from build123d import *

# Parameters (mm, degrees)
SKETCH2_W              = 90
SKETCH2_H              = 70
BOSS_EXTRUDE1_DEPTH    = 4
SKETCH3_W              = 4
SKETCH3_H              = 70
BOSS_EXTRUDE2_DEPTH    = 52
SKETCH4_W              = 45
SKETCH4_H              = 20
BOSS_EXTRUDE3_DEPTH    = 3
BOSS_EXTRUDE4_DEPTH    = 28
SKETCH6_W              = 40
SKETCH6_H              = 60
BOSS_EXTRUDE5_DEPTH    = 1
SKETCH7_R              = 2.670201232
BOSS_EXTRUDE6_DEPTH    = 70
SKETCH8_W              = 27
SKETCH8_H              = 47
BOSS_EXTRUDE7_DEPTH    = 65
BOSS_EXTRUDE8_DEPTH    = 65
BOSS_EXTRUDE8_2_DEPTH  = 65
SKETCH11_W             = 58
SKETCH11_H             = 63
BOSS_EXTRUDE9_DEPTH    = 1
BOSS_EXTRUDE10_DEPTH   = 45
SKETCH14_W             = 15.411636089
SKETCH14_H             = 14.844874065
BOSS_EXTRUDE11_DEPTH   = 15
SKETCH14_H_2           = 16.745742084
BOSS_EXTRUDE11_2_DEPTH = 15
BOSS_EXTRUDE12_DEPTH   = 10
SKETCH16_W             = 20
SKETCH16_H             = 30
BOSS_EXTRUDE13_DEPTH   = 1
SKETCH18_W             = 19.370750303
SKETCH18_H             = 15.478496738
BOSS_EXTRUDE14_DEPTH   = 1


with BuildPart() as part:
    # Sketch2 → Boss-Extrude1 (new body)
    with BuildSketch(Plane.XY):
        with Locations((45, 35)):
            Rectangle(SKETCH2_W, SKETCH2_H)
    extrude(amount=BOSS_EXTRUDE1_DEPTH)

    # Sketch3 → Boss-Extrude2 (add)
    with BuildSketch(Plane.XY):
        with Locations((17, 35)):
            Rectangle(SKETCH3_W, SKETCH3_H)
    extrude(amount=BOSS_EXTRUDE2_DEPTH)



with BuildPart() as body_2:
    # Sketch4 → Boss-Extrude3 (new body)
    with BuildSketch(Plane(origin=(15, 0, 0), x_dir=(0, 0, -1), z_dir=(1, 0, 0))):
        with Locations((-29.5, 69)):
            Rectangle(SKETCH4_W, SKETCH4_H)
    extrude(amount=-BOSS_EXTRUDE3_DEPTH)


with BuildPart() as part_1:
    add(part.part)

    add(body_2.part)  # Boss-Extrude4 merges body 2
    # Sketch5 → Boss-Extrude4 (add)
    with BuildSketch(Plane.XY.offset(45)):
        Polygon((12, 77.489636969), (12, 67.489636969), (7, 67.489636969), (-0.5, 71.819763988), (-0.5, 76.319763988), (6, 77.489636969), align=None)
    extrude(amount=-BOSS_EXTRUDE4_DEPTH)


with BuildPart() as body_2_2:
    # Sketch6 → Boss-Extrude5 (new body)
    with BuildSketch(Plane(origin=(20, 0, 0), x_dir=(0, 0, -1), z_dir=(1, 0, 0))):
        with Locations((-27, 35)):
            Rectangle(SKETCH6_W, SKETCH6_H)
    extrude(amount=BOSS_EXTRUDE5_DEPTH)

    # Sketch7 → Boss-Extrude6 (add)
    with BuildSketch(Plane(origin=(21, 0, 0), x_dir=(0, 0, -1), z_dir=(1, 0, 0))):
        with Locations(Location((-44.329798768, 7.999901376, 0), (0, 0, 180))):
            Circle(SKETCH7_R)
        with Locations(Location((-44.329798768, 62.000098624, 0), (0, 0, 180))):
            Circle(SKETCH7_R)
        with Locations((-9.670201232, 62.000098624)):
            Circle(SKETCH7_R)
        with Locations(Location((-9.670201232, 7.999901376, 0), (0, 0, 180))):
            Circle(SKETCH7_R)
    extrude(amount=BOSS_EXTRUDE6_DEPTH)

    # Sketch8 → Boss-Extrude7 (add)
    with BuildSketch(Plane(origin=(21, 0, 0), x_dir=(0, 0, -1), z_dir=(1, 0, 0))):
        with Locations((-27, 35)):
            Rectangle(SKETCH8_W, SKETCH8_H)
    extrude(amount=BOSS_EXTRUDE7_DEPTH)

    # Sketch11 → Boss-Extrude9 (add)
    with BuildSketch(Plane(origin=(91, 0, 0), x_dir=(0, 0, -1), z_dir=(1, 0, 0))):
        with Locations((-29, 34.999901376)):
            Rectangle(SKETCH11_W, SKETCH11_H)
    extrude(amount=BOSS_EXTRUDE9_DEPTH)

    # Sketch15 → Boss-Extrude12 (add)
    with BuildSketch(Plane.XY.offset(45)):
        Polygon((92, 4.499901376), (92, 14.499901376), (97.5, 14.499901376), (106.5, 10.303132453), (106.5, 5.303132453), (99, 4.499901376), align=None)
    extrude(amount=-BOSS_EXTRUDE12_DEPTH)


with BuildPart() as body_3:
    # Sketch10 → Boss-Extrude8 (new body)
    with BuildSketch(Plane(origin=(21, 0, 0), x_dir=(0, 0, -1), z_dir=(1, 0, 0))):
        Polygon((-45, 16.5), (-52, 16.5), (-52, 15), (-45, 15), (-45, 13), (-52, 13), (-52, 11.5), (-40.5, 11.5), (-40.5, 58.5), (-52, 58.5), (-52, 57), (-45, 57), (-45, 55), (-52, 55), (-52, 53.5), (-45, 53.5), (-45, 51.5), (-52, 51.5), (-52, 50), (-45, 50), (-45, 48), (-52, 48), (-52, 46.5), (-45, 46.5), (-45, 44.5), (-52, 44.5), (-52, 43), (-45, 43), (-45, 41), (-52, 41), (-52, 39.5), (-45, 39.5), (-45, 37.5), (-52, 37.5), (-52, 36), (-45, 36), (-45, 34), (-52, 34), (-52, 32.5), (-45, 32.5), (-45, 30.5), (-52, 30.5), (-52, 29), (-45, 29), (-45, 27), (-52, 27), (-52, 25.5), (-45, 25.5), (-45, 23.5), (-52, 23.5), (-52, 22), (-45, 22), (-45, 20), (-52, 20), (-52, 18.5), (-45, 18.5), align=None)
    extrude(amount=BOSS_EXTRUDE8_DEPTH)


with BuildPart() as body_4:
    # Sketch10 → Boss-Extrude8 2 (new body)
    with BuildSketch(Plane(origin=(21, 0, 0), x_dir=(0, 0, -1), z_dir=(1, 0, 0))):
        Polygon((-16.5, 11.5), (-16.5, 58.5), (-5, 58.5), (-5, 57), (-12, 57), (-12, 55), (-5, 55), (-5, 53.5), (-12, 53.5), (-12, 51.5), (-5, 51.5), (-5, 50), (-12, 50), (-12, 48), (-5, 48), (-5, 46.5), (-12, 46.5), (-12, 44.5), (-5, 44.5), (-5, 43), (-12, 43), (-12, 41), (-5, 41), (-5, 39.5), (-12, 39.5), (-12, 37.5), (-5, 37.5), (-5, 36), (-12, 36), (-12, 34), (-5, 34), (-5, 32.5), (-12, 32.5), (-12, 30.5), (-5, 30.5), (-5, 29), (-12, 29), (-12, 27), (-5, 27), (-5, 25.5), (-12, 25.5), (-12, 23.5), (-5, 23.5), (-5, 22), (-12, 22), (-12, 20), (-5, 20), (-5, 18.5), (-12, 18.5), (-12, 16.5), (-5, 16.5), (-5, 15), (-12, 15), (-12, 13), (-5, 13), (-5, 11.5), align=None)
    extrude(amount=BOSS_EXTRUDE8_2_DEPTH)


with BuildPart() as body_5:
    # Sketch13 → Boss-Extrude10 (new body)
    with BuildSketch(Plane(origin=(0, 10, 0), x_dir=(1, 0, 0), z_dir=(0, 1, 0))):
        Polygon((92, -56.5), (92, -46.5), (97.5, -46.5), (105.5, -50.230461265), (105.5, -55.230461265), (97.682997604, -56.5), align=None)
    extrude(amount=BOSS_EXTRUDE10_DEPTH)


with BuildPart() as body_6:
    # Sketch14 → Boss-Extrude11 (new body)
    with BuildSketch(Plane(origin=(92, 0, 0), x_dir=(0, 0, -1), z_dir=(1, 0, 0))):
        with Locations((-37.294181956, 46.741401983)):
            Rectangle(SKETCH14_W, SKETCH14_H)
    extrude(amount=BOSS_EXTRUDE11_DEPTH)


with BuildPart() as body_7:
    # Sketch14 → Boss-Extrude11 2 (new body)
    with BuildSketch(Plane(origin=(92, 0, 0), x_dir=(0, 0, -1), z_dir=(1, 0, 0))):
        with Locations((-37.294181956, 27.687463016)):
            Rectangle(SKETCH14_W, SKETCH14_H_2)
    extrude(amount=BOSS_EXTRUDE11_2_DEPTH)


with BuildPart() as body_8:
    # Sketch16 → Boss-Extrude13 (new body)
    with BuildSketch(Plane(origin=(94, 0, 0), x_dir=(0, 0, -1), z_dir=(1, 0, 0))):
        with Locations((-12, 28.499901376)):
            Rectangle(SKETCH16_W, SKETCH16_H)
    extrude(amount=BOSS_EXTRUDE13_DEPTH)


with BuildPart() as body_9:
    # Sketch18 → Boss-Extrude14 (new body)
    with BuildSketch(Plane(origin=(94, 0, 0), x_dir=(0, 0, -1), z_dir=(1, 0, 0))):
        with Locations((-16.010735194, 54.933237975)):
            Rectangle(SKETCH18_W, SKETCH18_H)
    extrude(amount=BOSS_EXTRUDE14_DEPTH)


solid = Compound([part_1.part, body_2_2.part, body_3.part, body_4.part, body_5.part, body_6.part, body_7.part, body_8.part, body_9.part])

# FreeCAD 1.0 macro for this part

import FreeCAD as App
import Part
import Sketcher
Q = App.Units.Quantity


def add_polygon(sketch, points):
    """Adds a closed chain of lines whose ends are joined by coincident constraints."""
    first, n = sketch.GeometryCount, len(points)
    for a, b in zip(points, points[1:] + points[:1]):
        sketch.addGeometry(Part.LineSegment(App.Vector(*a, 0), App.Vector(*b, 0)), False)
    for i in range(n):
        sketch.addConstraint(Sketcher.Constraint("Coincident", first + i, 2, first + (i + 1) % n, 1))

doc = App.newDocument("Part")
body = doc.addObject("PartDesign::Body", "Body")

sketch1 = body.newObject("Sketcher::SketchObject", "Sketch")
sketch1.AttachmentSupport = (doc.getObject("XY_Plane"), [""])
sketch1.MapMode = "FlatFace"
add_polygon(sketch1, [(0, 70), (0, 0), (90, 0), (90, 70)])
sketch1.addConstraint(Sketcher.Constraint("Vertical", 0))
sketch1.addConstraint(Sketcher.Constraint("Horizontal", 1))
sketch1.addConstraint(Sketcher.Constraint("Vertical", 2))
sketch1.addConstraint(Sketcher.Constraint("Horizontal", 3))
sketch1.addConstraint(Sketcher.Constraint("Coincident", 0, 2, -1, 1))
sketch1.addConstraint(Sketcher.Constraint("DistanceX", 1, 1, 1, 2, 90.0))
sketch1.addConstraint(Sketcher.Constraint("DistanceY", 0, 2, 0, 1, 70.0))
pad1 = body.newObject("PartDesign::Pad", "Pad")
pad1.Profile = sketch1
pad1.Length = 4

sketch2 = body.newObject("Sketcher::SketchObject", "Sketch001")
sketch2.AttachmentSupport = (doc.getObject("XY_Plane"), [""])
sketch2.MapMode = "FlatFace"
add_polygon(sketch2, [(15, 70), (15, 0), (19, 0), (19, 70)])
sketch2.addConstraint(Sketcher.Constraint("Vertical", 0))
sketch2.addConstraint(Sketcher.Constraint("Horizontal", 1))
sketch2.addConstraint(Sketcher.Constraint("Vertical", 2))
sketch2.addConstraint(Sketcher.Constraint("Horizontal", 3))
sketch2.addConstraint(Sketcher.Constraint("PointOnObject", 0, 2, -1))
sketch2.addConstraint(Sketcher.Constraint("DistanceX", 1, 1, 1, 2, 4.0))
sketch2.addConstraint(Sketcher.Constraint("DistanceY", 0, 2, 0, 1, 70.0))
sketch2.addConstraint(Sketcher.Constraint("DistanceX", -1, 1, 0, 2, 15.0))
pad2 = body.newObject("PartDesign::Pad", "Pad001")
pad2.Profile = sketch2
pad2.Length = 52
body2 = doc.addObject("PartDesign::Body", "Body001")

sketch3 = body2.newObject("Sketcher::SketchObject", "Sketch002")
sketch3.AttachmentSupport = (doc.getObject("YZ_Plane001"), [""])
sketch3.MapMode = "FlatFace"
sketch3.AttachmentOffset = App.Placement(App.Vector(0, 0, 15), App.Rotation())
add_polygon(sketch3, [(79, 52), (59, 52), (59, 7), (79, 7)])
sketch3.addConstraint(Sketcher.Constraint("Horizontal", 0))
sketch3.addConstraint(Sketcher.Constraint("Vertical", 1))
sketch3.addConstraint(Sketcher.Constraint("Horizontal", 2))
sketch3.addConstraint(Sketcher.Constraint("Vertical", 3))
sketch3.addConstraint(Sketcher.Constraint("DistanceX", 0, 2, 0, 1, 20.0))
sketch3.addConstraint(Sketcher.Constraint("DistanceY", 1, 2, 1, 1, 45.0))
sketch3.addConstraint(Sketcher.Constraint("DistanceX", -1, 1, 0, 2, 59.0))
sketch3.addConstraint(Sketcher.Constraint("DistanceY", -1, 1, 0, 2, 52.0))
pad3 = body2.newObject("PartDesign::Pad", "Pad002")
pad3.Profile = sketch3
pad3.Length = 3
pad3.Reversed = True
doc.recompute()

boolean = body.newObject("PartDesign::Boolean", "Boolean")
boolean.Type = "Fuse"
boolean.addObjects([body2])

sketch4 = body.newObject("Sketcher::SketchObject", "Sketch003")
sketch4.AttachmentSupport = (doc.getObject("XY_Plane"), [""])
sketch4.MapMode = "FlatFace"
sketch4.AttachmentOffset = App.Placement(App.Vector(0, 0, 45), App.Rotation())
add_polygon(sketch4, [(12, 67.5), (12, 77.5), (6, 77.5), (-0.5, 76.3), (-0.5, 71.8), (7, 67.5)])
sketch4.addConstraint(Sketcher.Constraint("Vertical", 0))
sketch4.addConstraint(Sketcher.Constraint("Horizontal", 1))
sketch4.addConstraint(Sketcher.Constraint("Vertical", 3))
sketch4.addConstraint(Sketcher.Constraint("Horizontal", 5))
sketch4.addConstraint(Sketcher.Constraint("DistanceX", 1, 2, 1, 1, 6.0))
sketch4.addConstraint(Sketcher.Constraint("DistanceX", 5, 1, 5, 2, 5.0))
sketch4.addConstraint(Sketcher.Constraint("DistanceY", 0, 1, 0, 2, 10.0))
sketch4.addConstraint(Sketcher.Constraint("Angle", 4, Q("-30 deg")))
sketch4.addConstraint(Sketcher.Constraint("DistanceY", 3, 2, 3, 1, 4.5))
sketch4.addConstraint(Sketcher.Constraint("DistanceX", -1, 1, 0, 2, 12.0))
sketch4.addConstraint(Sketcher.Constraint("DistanceX", 2, 2, -1, 1, 0.5))
sketch4.addConstraint(Sketcher.Constraint("DistanceY", -1, 1, 0, 2, 77.489637))
pad4 = body.newObject("PartDesign::Pad", "Pad003")
pad4.Profile = sketch4
pad4.Length = 28
pad4.Reversed = True
body3 = doc.addObject("PartDesign::Body", "Body002")

sketch5 = body3.newObject("Sketcher::SketchObject", "Sketch004")
sketch5.AttachmentSupport = (doc.getObject("YZ_Plane002"), [""])
sketch5.MapMode = "FlatFace"
sketch5.AttachmentOffset = App.Placement(App.Vector(0, 0, 20), App.Rotation())
add_polygon(sketch5, [(65, 47), (5, 47), (5, 7), (65, 7)])
sketch5.addConstraint(Sketcher.Constraint("Horizontal", 0))
sketch5.addConstraint(Sketcher.Constraint("Vertical", 1))
sketch5.addConstraint(Sketcher.Constraint("Horizontal", 2))
sketch5.addConstraint(Sketcher.Constraint("Vertical", 3))
sketch5.addConstraint(Sketcher.Constraint("DistanceX", 0, 2, 0, 1, 60.0))
sketch5.addConstraint(Sketcher.Constraint("DistanceY", 1, 2, 1, 1, 40.0))
sketch5.addConstraint(Sketcher.Constraint("DistanceX", -1, 1, 0, 2, 5.0))
sketch5.addConstraint(Sketcher.Constraint("DistanceY", -1, 1, 0, 2, 47.0))
pad5 = body3.newObject("PartDesign::Pad", "Pad004")
pad5.Profile = sketch5
pad5.Length = 1

sketch6 = body3.newObject("Sketcher::SketchObject", "Sketch005")
sketch6.AttachmentSupport = (doc.getObject("YZ_Plane002"), [""])
sketch6.MapMode = "FlatFace"
sketch6.AttachmentOffset = App.Placement(App.Vector(0, 0, 21), App.Rotation())
sketch6.addGeometry(Part.Circle(App.Vector(8, 44.3, 0), App.Vector(0, 0, 1), 2.7), False)
sketch6.addGeometry(Part.Circle(App.Vector(62, 44.3, 0), App.Vector(0, 0, 1), 2.7), False)
sketch6.addGeometry(Part.Circle(App.Vector(62, 9.7, 0), App.Vector(0, 0, 1), 2.7), False)
sketch6.addGeometry(Part.Circle(App.Vector(8, 9.7, 0), App.Vector(0, 0, 1), 2.7), False)
sketch6.addConstraint(Sketcher.Constraint("Equal", 0, 1))
sketch6.addConstraint(Sketcher.Constraint("Equal", 1, 2))
sketch6.addConstraint(Sketcher.Constraint("Equal", 2, 3))
sketch6.addConstraint(Sketcher.Constraint("Horizontal", 0, 3, 1, 3))
sketch6.addConstraint(Sketcher.Constraint("Horizontal", 2, 3, 3, 3))
sketch6.addConstraint(Sketcher.Constraint("Vertical", 1, 3, 2, 3))
sketch6.addConstraint(Sketcher.Constraint("Vertical", 0, 3, 3, 3))
sketch6.addConstraint(Sketcher.Constraint("Diameter", 0, 5.340402))
sketch6.addConstraint(Sketcher.Constraint("DistanceX", -1, 1, 0, 3, 7.999901))
sketch6.addConstraint(Sketcher.Constraint("DistanceY", -1, 1, 0, 3, 44.329799))
sketch6.addConstraint(Sketcher.Constraint("DistanceX", -1, 1, 1, 3, 62.000099))
sketch6.addConstraint(Sketcher.Constraint("DistanceY", -1, 1, 2, 3, 9.670201))
pad6 = body3.newObject("PartDesign::Pad", "Pad005")
pad6.Profile = sketch6
pad6.Length = 70

sketch7 = body3.newObject("Sketcher::SketchObject", "Sketch006")
sketch7.AttachmentSupport = (doc.getObject("YZ_Plane002"), [""])
sketch7.MapMode = "FlatFace"
sketch7.AttachmentOffset = App.Placement(App.Vector(0, 0, 21), App.Rotation())
add_polygon(sketch7, [(58, 40), (12, 40), (12, 14), (58, 14)])
sketch7.addConstraint(Sketcher.Constraint("Horizontal", 0))
sketch7.addConstraint(Sketcher.Constraint("Vertical", 1))
sketch7.addConstraint(Sketcher.Constraint("Horizontal", 2))
sketch7.addConstraint(Sketcher.Constraint("Vertical", 3))
sketch7.addConstraint(Sketcher.Constraint("DistanceX", 0, 2, 0, 1, 47.0))
sketch7.addConstraint(Sketcher.Constraint("DistanceY", 1, 2, 1, 1, 27.0))
sketch7.addConstraint(Sketcher.Constraint("DistanceX", -1, 1, 0, 2, 11.5))
sketch7.addConstraint(Sketcher.Constraint("DistanceY", -1, 1, 0, 2, 40.5))
pad7 = body3.newObject("PartDesign::Pad", "Pad006")
pad7.Profile = sketch7
pad7.Length = 65

sketch8 = body3.newObject("Sketcher::SketchObject", "Sketch007")
sketch8.AttachmentSupport = (doc.getObject("YZ_Plane002"), [""])
sketch8.MapMode = "FlatFace"
sketch8.AttachmentOffset = App.Placement(App.Vector(0, 0, 91), App.Rotation())
add_polygon(sketch8, [(66, 58), (3, 58), (3, 0), (66, 0)])
sketch8.addConstraint(Sketcher.Constraint("Horizontal", 0))
sketch8.addConstraint(Sketcher.Constraint("Vertical", 1))
sketch8.addConstraint(Sketcher.Constraint("Horizontal", 2))
sketch8.addConstraint(Sketcher.Constraint("Vertical", 3))
sketch8.addConstraint(Sketcher.Constraint("PointOnObject", 1, 2, -1))
sketch8.addConstraint(Sketcher.Constraint("DistanceX", 0, 2, 0, 1, 63.0))
sketch8.addConstraint(Sketcher.Constraint("DistanceY", 1, 2, 1, 1, 58.0))
sketch8.addConstraint(Sketcher.Constraint("DistanceX", -1, 1, 0, 2, 3.499901))
pad8 = body3.newObject("PartDesign::Pad", "Pad007")
pad8.Profile = sketch8
pad8.Length = 1

sketch9 = body3.newObject("Sketcher::SketchObject", "Sketch008")
sketch9.AttachmentSupport = (doc.getObject("XY_Plane002"), [""])
sketch9.MapMode = "FlatFace"
sketch9.AttachmentOffset = App.Placement(App.Vector(0, 0, 45), App.Rotation())
add_polygon(sketch9, [(92, 14), (92, 4), (99, 4), (106, 5), (106, 10), (98, 14)])
sketch9.addConstraint(Sketcher.Constraint("Vertical", 0))
sketch9.addConstraint(Sketcher.Constraint("Horizontal", 1))
sketch9.addConstraint(Sketcher.Constraint("Vertical", 3))
sketch9.addConstraint(Sketcher.Constraint("Horizontal", 5))
sketch9.addConstraint(Sketcher.Constraint("DistanceX", 1, 1, 1, 2, 7.0))
sketch9.addConstraint(Sketcher.Constraint("DistanceY", 0, 2, 0, 1, 10.0))
sketch9.addConstraint(Sketcher.Constraint("DistanceY", 3, 1, 3, 2, 5.0))
sketch9.addConstraint(Sketcher.Constraint("Angle", 4, Q("155 deg")))
sketch9.addConstraint(Sketcher.Constraint("DistanceX", 5, 2, 5, 1, 5.5))
sketch9.addConstraint(Sketcher.Constraint("DistanceX", -1, 1, 0, 2, 92.0))
sketch9.addConstraint(Sketcher.Constraint("DistanceX", 4, 2, 3, 2, 9.0))
sketch9.addConstraint(Sketcher.Constraint("DistanceY", -1, 1, 0, 2, 4.499901))
pad9 = body3.newObject("PartDesign::Pad", "Pad008")
pad9.Profile = sketch9
pad9.Length = 10
pad9.Reversed = True
body4 = doc.addObject("PartDesign::Body", "Body003")

sketch10 = body4.newObject("Sketcher::SketchObject", "Sketch009")
sketch10.AttachmentSupport = (doc.getObject("YZ_Plane003"), [""])
sketch10.MapMode = "FlatFace"
sketch10.AttachmentOffset = App.Placement(App.Vector(0, 0, 21), App.Rotation())
add_polygon(sketch10, [(16.5, 45), (16.5, 52), (15, 52), (15, 45), (13, 45), (13, 52), (11.5, 52), (11.5, 40.5), (58.5, 40.5), (58.5, 52), (57, 52), (57, 45), (55, 45), (55, 52), (53.5, 52), (53.5, 45), (51.5, 45), (51.5, 52), (50, 52), (50, 45), (48, 45), (48, 52), (46.5, 52), (46.5, 45), (44.5, 45), (44.5, 52), (43, 52), (43, 45), (41, 45), (41, 52), (39.5, 52), (39.5, 45), (37.5, 45), (37.5, 52), (36, 52), (36, 45), (34, 45), (34, 52), (32.5, 52), (32.5, 45), (30.5, 45), (30.5, 52), (29, 52), (29, 45), (27, 45), (27, 52), (25.5, 52), (25.5, 45), (23.5, 45), (23.5, 52), (22, 52), (22, 45), (20, 45), (20, 52), (18.5, 52), (18.5, 45)])
sketch10.addConstraint(Sketcher.Constraint("Vertical", 0))
sketch10.addConstraint(Sketcher.Constraint("Horizontal", 1))
sketch10.addConstraint(Sketcher.Constraint("Vertical", 2))
sketch10.addConstraint(Sketcher.Constraint("Horizontal", 3))
sketch10.addConstraint(Sketcher.Constraint("Vertical", 4))
sketch10.addConstraint(Sketcher.Constraint("Horizontal", 5))
sketch10.addConstraint(Sketcher.Constraint("Vertical", 6))
sketch10.addConstraint(Sketcher.Constraint("Horizontal", 7))
sketch10.addConstraint(Sketcher.Constraint("Vertical", 8))
sketch10.addConstraint(Sketcher.Constraint("Horizontal", 9))
sketch10.addConstraint(Sketcher.Constraint("Vertical", 10))
sketch10.addConstraint(Sketcher.Constraint("Horizontal", 11))
sketch10.addConstraint(Sketcher.Constraint("Vertical", 12))
sketch10.addConstraint(Sketcher.Constraint("Horizontal", 13))
sketch10.addConstraint(Sketcher.Constraint("Vertical", 14))
sketch10.addConstraint(Sketcher.Constraint("Horizontal", 15))
sketch10.addConstraint(Sketcher.Constraint("Vertical", 16))
sketch10.addConstraint(Sketcher.Constraint("Horizontal", 17))
sketch10.addConstraint(Sketcher.Constraint("Vertical", 18))
sketch10.addConstraint(Sketcher.Constraint("Horizontal", 19))
sketch10.addConstraint(Sketcher.Constraint("Vertical", 20))
sketch10.addConstraint(Sketcher.Constraint("Horizontal", 21))
sketch10.addConstraint(Sketcher.Constraint("Vertical", 22))
sketch10.addConstraint(Sketcher.Constraint("Horizontal", 23))
sketch10.addConstraint(Sketcher.Constraint("Vertical", 24))
sketch10.addConstraint(Sketcher.Constraint("Horizontal", 25))
sketch10.addConstraint(Sketcher.Constraint("Vertical", 26))
sketch10.addConstraint(Sketcher.Constraint("Horizontal", 27))
sketch10.addConstraint(Sketcher.Constraint("Vertical", 28))
sketch10.addConstraint(Sketcher.Constraint("Horizontal", 29))
sketch10.addConstraint(Sketcher.Constraint("Vertical", 30))
sketch10.addConstraint(Sketcher.Constraint("Horizontal", 31))
sketch10.addConstraint(Sketcher.Constraint("Vertical", 32))
sketch10.addConstraint(Sketcher.Constraint("Horizontal", 33))
sketch10.addConstraint(Sketcher.Constraint("Vertical", 34))
sketch10.addConstraint(Sketcher.Constraint("Horizontal", 35))
sketch10.addConstraint(Sketcher.Constraint("Vertical", 36))
sketch10.addConstraint(Sketcher.Constraint("Horizontal", 37))
sketch10.addConstraint(Sketcher.Constraint("Vertical", 38))
sketch10.addConstraint(Sketcher.Constraint("Horizontal", 39))
sketch10.addConstraint(Sketcher.Constraint("Vertical", 40))
sketch10.addConstraint(Sketcher.Constraint("Horizontal", 41))
sketch10.addConstraint(Sketcher.Constraint("Vertical", 42))
sketch10.addConstraint(Sketcher.Constraint("Horizontal", 43))
sketch10.addConstraint(Sketcher.Constraint("Vertical", 44))
sketch10.addConstraint(Sketcher.Constraint("Horizontal", 45))
sketch10.addConstraint(Sketcher.Constraint("Vertical", 46))
sketch10.addConstraint(Sketcher.Constraint("Horizontal", 47))
sketch10.addConstraint(Sketcher.Constraint("Vertical", 48))
sketch10.addConstraint(Sketcher.Constraint("Horizontal", 49))
sketch10.addConstraint(Sketcher.Constraint("Vertical", 50))
sketch10.addConstraint(Sketcher.Constraint("Horizontal", 51))
sketch10.addConstraint(Sketcher.Constraint("Vertical", 52))
sketch10.addConstraint(Sketcher.Constraint("Horizontal", 53))
sketch10.addConstraint(Sketcher.Constraint("Vertical", 54))
sketch10.addConstraint(Sketcher.Constraint("Horizontal", 55))
sketch10.addConstraint(Sketcher.Constraint("Horizontal", 1, 2, 4, 2))
sketch10.addConstraint(Sketcher.Constraint("Horizontal", 5, 2, 8, 2))
sketch10.addConstraint(Sketcher.Constraint("Horizontal", 3, 2, 10, 2))
sketch10.addConstraint(Sketcher.Constraint("Horizontal", 9, 2, 12, 2))
sketch10.addConstraint(Sketcher.Constraint("Horizontal", 11, 2, 14, 2))
sketch10.addConstraint(Sketcher.Constraint("Horizontal", 13, 2, 16, 2))
sketch10.addConstraint(Sketcher.Constraint("Horizontal", 15, 2, 18, 2))
sketch10.addConstraint(Sketcher.Constraint("Horizontal", 17, 2, 20, 2))
sketch10.addConstraint(Sketcher.Constraint("Horizontal", 19, 2, 22, 2))
sketch10.addConstraint(Sketcher.Constraint("Horizontal", 21, 2, 24, 2))
sketch10.addConstraint(Sketcher.Constraint("Horizontal", 23, 2, 26, 2))
sketch10.addConstraint(Sketcher.Constraint("Horizontal", 25, 2, 28, 2))
sketch10.addConstraint(Sketcher.Constraint("Horizontal", 27, 2, 30, 2))
sketch10.addConstraint(Sketcher.Constraint("Horizontal", 29, 2, 32, 2))
sketch10.addConstraint(Sketcher.Constraint("Horizontal", 31, 2, 34, 2))
sketch10.addConstraint(Sketcher.Constraint("Horizontal", 33, 2, 36, 2))
sketch10.addConstraint(Sketcher.Constraint("Horizontal", 35, 2, 38, 2))
sketch10.addConstraint(Sketcher.Constraint("Horizontal", 37, 2, 40, 2))
sketch10.addConstraint(Sketcher.Constraint("Horizontal", 39, 2, 42, 2))
sketch10.addConstraint(Sketcher.Constraint("Horizontal", 41, 2, 44, 2))
sketch10.addConstraint(Sketcher.Constraint("Horizontal", 43, 2, 46, 2))
sketch10.addConstraint(Sketcher.Constraint("Horizontal", 45, 2, 48, 2))
sketch10.addConstraint(Sketcher.Constraint("Horizontal", 47, 2, 50, 2))
sketch10.addConstraint(Sketcher.Constraint("Horizontal", 49, 2, 52, 2))
sketch10.addConstraint(Sketcher.Constraint("Horizontal", 51, 2, 54, 2))
sketch10.addConstraint(Sketcher.Constraint("Equal", 1, 5))
sketch10.addConstraint(Sketcher.Constraint("Equal", 5, 9))
sketch10.addConstraint(Sketcher.Constraint("Equal", 3, 11))
sketch10.addConstraint(Sketcher.Constraint("Equal", 9, 13))
sketch10.addConstraint(Sketcher.Constraint("Equal", 11, 15))
sketch10.addConstraint(Sketcher.Constraint("Equal", 13, 17))
sketch10.addConstraint(Sketcher.Constraint("Equal", 15, 19))
sketch10.addConstraint(Sketcher.Constraint("Equal", 17, 21))
sketch10.addConstraint(Sketcher.Constraint("Equal", 19, 23))
sketch10.addConstraint(Sketcher.Constraint("Equal", 21, 25))
sketch10.addConstraint(Sketcher.Constraint("Equal", 23, 27))
sketch10.addConstraint(Sketcher.Constraint("Equal", 25, 29))
sketch10.addConstraint(Sketcher.Constraint("Equal", 27, 31))
sketch10.addConstraint(Sketcher.Constraint("Equal", 29, 33))
sketch10.addConstraint(Sketcher.Constraint("Equal", 31, 35))
sketch10.addConstraint(Sketcher.Constraint("Equal", 33, 37))
sketch10.addConstraint(Sketcher.Constraint("Equal", 35, 39))
sketch10.addConstraint(Sketcher.Constraint("Equal", 37, 41))
sketch10.addConstraint(Sketcher.Constraint("Equal", 39, 43))
sketch10.addConstraint(Sketcher.Constraint("Equal", 41, 45))
sketch10.addConstraint(Sketcher.Constraint("Equal", 43, 47))
sketch10.addConstraint(Sketcher.Constraint("Equal", 45, 49))
sketch10.addConstraint(Sketcher.Constraint("Equal", 47, 51))
sketch10.addConstraint(Sketcher.Constraint("Equal", 49, 53))
sketch10.addConstraint(Sketcher.Constraint("Equal", 51, 55))
sketch10.addConstraint(Sketcher.Constraint("DistanceX", 3, 2, 3, 1, 2.0))
sketch10.addConstraint(Sketcher.Constraint("DistanceX", 7, 1, 7, 2, 47.0))
sketch10.addConstraint(Sketcher.Constraint("DistanceY", 0, 1, 0, 2, 7.0))
sketch10.addConstraint(Sketcher.Constraint("DistanceY", 6, 2, 6, 1, 11.5))
sketch10.addConstraint(Sketcher.Constraint("DistanceY", -1, 1, 0, 2, 52.0))
sketch10.addConstraint(Sketcher.Constraint("DistanceX", -1, 1, 1, 2, 15.0))
pad10 = body4.newObject("PartDesign::Pad", "Pad009")
pad10.Profile = sketch10
pad10.Length = 65
body5 = doc.addObject("PartDesign::Body", "Body004")

sketch11 = body5.newObject("Sketcher::SketchObject", "Sketch010")
sketch11.AttachmentSupport = (doc.getObject("YZ_Plane004"), [""])
sketch11.MapMode = "FlatFace"
sketch11.AttachmentOffset = App.Placement(App.Vector(0, 0, 21), App.Rotation())
add_polygon(sketch11, [(58.5, 16.5), (11.5, 16.5), (11.5, 5), (13, 5), (13, 12), (15, 12), (15, 5), (16.5, 5), (16.5, 12), (18.5, 12), (18.5, 5), (20, 5), (20, 12), (22, 12), (22, 5), (23.5, 5), (23.5, 12), (25.5, 12), (25.5, 5), (27, 5), (27, 12), (29, 12), (29, 5), (30.5, 5), (30.5, 12), (32.5, 12), (32.5, 5), (34, 5), (34, 12), (36, 12), (36, 5), (37.5, 5), (37.5, 12), (39.5, 12), (39.5, 5), (41, 5), (41, 12), (43, 12), (43, 5), (44.5, 5), (44.5, 12), (46.5, 12), (46.5, 5), (48, 5), (48, 12), (50, 12), (50, 5), (51.5, 5), (51.5, 12), (53.5, 12), (53.5, 5), (55, 5), (55, 12), (57, 12), (57, 5), (58.5, 5)])
sketch11.addConstraint(Sketcher.Constraint("Horizontal", 0))
sketch11.addConstraint(Sketcher.Constraint("Vertical", 1))
sketch11.addConstraint(Sketcher.Constraint("Horizontal", 2))
sketch11.addConstraint(Sketcher.Constraint("Vertical", 3))
sketch11.addConstraint(Sketcher.Constraint("Horizontal", 4))
sketch11.addConstraint(Sketcher.Constraint("Vertical", 5))
sketch11.addConstraint(Sketcher.Constraint("Horizontal", 6))
sketch11.addConstraint(Sketcher.Constraint("Vertical", 7))
sketch11.addConstraint(Sketcher.Constraint("Horizontal", 8))
sketch11.addConstraint(Sketcher.Constraint("Vertical", 9))
sketch11.addConstraint(Sketcher.Constraint("Horizontal", 10))
sketch11.addConstraint(Sketcher.Constraint("Vertical", 11))
sketch11.addConstraint(Sketcher.Constraint("Horizontal", 12))
sketch11.addConstraint(Sketcher.Constraint("Vertical", 13))
sketch11.addConstraint(Sketcher.Constraint("Horizontal", 14))
sketch11.addConstraint(Sketcher.Constraint("Vertical", 15))
sketch11.addConstraint(Sketcher.Constraint("Horizontal", 16))
sketch11.addConstraint(Sketcher.Constraint("Vertical", 17))
sketch11.addConstraint(Sketcher.Constraint("Horizontal", 18))
sketch11.addConstraint(Sketcher.Constraint("Vertical", 19))
sketch11.addConstraint(Sketcher.Constraint("Horizontal", 20))
sketch11.addConstraint(Sketcher.Constraint("Vertical", 21))
sketch11.addConstraint(Sketcher.Constraint("Horizontal", 22))
sketch11.addConstraint(Sketcher.Constraint("Vertical", 23))
sketch11.addConstraint(Sketcher.Constraint("Horizontal", 24))
sketch11.addConstraint(Sketcher.Constraint("Vertical", 25))
sketch11.addConstraint(Sketcher.Constraint("Horizontal", 26))
sketch11.addConstraint(Sketcher.Constraint("Vertical", 27))
sketch11.addConstraint(Sketcher.Constraint("Horizontal", 28))
sketch11.addConstraint(Sketcher.Constraint("Vertical", 29))
sketch11.addConstraint(Sketcher.Constraint("Horizontal", 30))
sketch11.addConstraint(Sketcher.Constraint("Vertical", 31))
sketch11.addConstraint(Sketcher.Constraint("Horizontal", 32))
sketch11.addConstraint(Sketcher.Constraint("Vertical", 33))
sketch11.addConstraint(Sketcher.Constraint("Horizontal", 34))
sketch11.addConstraint(Sketcher.Constraint("Vertical", 35))
sketch11.addConstraint(Sketcher.Constraint("Horizontal", 36))
sketch11.addConstraint(Sketcher.Constraint("Vertical", 37))
sketch11.addConstraint(Sketcher.Constraint("Horizontal", 38))
sketch11.addConstraint(Sketcher.Constraint("Vertical", 39))
sketch11.addConstraint(Sketcher.Constraint("Horizontal", 40))
sketch11.addConstraint(Sketcher.Constraint("Vertical", 41))
sketch11.addConstraint(Sketcher.Constraint("Horizontal", 42))
sketch11.addConstraint(Sketcher.Constraint("Vertical", 43))
sketch11.addConstraint(Sketcher.Constraint("Horizontal", 44))
sketch11.addConstraint(Sketcher.Constraint("Vertical", 45))
sketch11.addConstraint(Sketcher.Constraint("Horizontal", 46))
sketch11.addConstraint(Sketcher.Constraint("Vertical", 47))
sketch11.addConstraint(Sketcher.Constraint("Horizontal", 48))
sketch11.addConstraint(Sketcher.Constraint("Vertical", 49))
sketch11.addConstraint(Sketcher.Constraint("Horizontal", 50))
sketch11.addConstraint(Sketcher.Constraint("Vertical", 51))
sketch11.addConstraint(Sketcher.Constraint("Horizontal", 52))
sketch11.addConstraint(Sketcher.Constraint("Vertical", 53))
sketch11.addConstraint(Sketcher.Constraint("Horizontal", 54))
sketch11.addConstraint(Sketcher.Constraint("Vertical", 55))
sketch11.addConstraint(Sketcher.Constraint("Horizontal", 2, 2, 5, 2))
sketch11.addConstraint(Sketcher.Constraint("Horizontal", 4, 2, 7, 2))
sketch11.addConstraint(Sketcher.Constraint("Horizontal", 6, 2, 9, 2))
sketch11.addConstraint(Sketcher.Constraint("Horizontal", 8, 2, 11, 2))
sketch11.addConstraint(Sketcher.Constraint("Horizontal", 10, 2, 13, 2))
sketch11.addConstraint(Sketcher.Constraint("Horizontal", 12, 2, 15, 2))
sketch11.addConstraint(Sketcher.Constraint("Horizontal", 14, 2, 17, 2))
sketch11.addConstraint(Sketcher.Constraint("Horizontal", 16, 2, 19, 2))
sketch11.addConstraint(Sketcher.Constraint("Horizontal", 18, 2, 21, 2))
sketch11.addConstraint(Sketcher.Constraint("Horizontal", 20, 2, 23, 2))
sketch11.addConstraint(Sketcher.Constraint("Horizontal", 22, 2, 25, 2))
sketch11.addConstraint(Sketcher.Constraint("Horizontal", 24, 2, 27, 2))
sketch11.addConstraint(Sketcher.Constraint("Horizontal", 26, 2, 29, 2))
sketch11.addConstraint(Sketcher.Constraint("Horizontal", 28, 2, 31, 2))
sketch11.addConstraint(Sketcher.Constraint("Horizontal", 30, 2, 33, 2))
sketch11.addConstraint(Sketcher.Constraint("Horizontal", 32, 2, 35, 2))
sketch11.addConstraint(Sketcher.Constraint("Horizontal", 34, 2, 37, 2))
sketch11.addConstraint(Sketcher.Constraint("Horizontal", 36, 2, 39, 2))
sketch11.addConstraint(Sketcher.Constraint("Horizontal", 38, 2, 41, 2))
sketch11.addConstraint(Sketcher.Constraint("Horizontal", 40, 2, 43, 2))
sketch11.addConstraint(Sketcher.Constraint("Horizontal", 42, 2, 45, 2))
sketch11.addConstraint(Sketcher.Constraint("Horizontal", 44, 2, 47, 2))
sketch11.addConstraint(Sketcher.Constraint("Horizontal", 46, 2, 49, 2))
sketch11.addConstraint(Sketcher.Constraint("Horizontal", 48, 2, 51, 2))
sketch11.addConstraint(Sketcher.Constraint("Horizontal", 50, 2, 53, 2))
sketch11.addConstraint(Sketcher.Constraint("Equal", 2, 6))
sketch11.addConstraint(Sketcher.Constraint("Equal", 4, 8))
sketch11.addConstraint(Sketcher.Constraint("Equal", 6, 10))
sketch11.addConstraint(Sketcher.Constraint("Equal", 8, 12))
sketch11.addConstraint(Sketcher.Constraint("Equal", 10, 14))
sketch11.addConstraint(Sketcher.Constraint("Equal", 12, 16))
sketch11.addConstraint(Sketcher.Constraint("Equal", 14, 18))
sketch11.addConstraint(Sketcher.Constraint("Equal", 16, 20))
sketch11.addConstraint(Sketcher.Constraint("Equal", 18, 22))
sketch11.addConstraint(Sketcher.Constraint("Equal", 20, 24))
sketch11.addConstraint(Sketcher.Constraint("Equal", 22, 26))
sketch11.addConstraint(Sketcher.Constraint("Equal", 24, 28))
sketch11.addConstraint(Sketcher.Constraint("Equal", 26, 30))
sketch11.addConstraint(Sketcher.Constraint("Equal", 28, 32))
sketch11.addConstraint(Sketcher.Constraint("Equal", 30, 34))
sketch11.addConstraint(Sketcher.Constraint("Equal", 32, 36))
sketch11.addConstraint(Sketcher.Constraint("Equal", 34, 38))
sketch11.addConstraint(Sketcher.Constraint("Equal", 36, 40))
sketch11.addConstraint(Sketcher.Constraint("Equal", 38, 42))
sketch11.addConstraint(Sketcher.Constraint("Equal", 40, 44))
sketch11.addConstraint(Sketcher.Constraint("Equal", 42, 46))
sketch11.addConstraint(Sketcher.Constraint("Equal", 44, 48))
sketch11.addConstraint(Sketcher.Constraint("Equal", 46, 50))
sketch11.addConstraint(Sketcher.Constraint("Equal", 48, 52))
sketch11.addConstraint(Sketcher.Constraint("Equal", 50, 54))
sketch11.addConstraint(Sketcher.Constraint("DistanceX", 0, 2, 0, 1, 47.0))
sketch11.addConstraint(Sketcher.Constraint("DistanceX", 4, 1, 4, 2, 2.0))
sketch11.addConstraint(Sketcher.Constraint("DistanceY", 3, 1, 3, 2, 7.0))
sketch11.addConstraint(Sketcher.Constraint("DistanceY", 1, 2, 1, 1, 11.5))
sketch11.addConstraint(Sketcher.Constraint("DistanceY", -1, 1, 1, 2, 5.0))
sketch11.addConstraint(Sketcher.Constraint("DistanceX", -1, 1, 2, 2, 13.0))
pad11 = body5.newObject("PartDesign::Pad", "Pad010")
pad11.Profile = sketch11
pad11.Length = 65
body6 = doc.addObject("PartDesign::Body", "Body005")

sketch12 = body6.newObject("Sketcher::SketchObject", "Sketch011")
sketch12.AttachmentSupport = (doc.getObject("XZ_Plane005"), [""])
sketch12.MapMode = "FlatFace"
sketch12.AttachmentOffset = App.Placement(App.Vector(0, 0, -10), App.Rotation())
add_polygon(sketch12, [(92, 46), (92, 56), (98, 56), (106, 55), (106, 50), (98, 46)])
sketch12.addConstraint(Sketcher.Constraint("Vertical", 0))
sketch12.addConstraint(Sketcher.Constraint("Horizontal", 1))
sketch12.addConstraint(Sketcher.Constraint("Vertical", 3))
sketch12.addConstraint(Sketcher.Constraint("Horizontal", 5))
sketch12.addConstraint(Sketcher.Constraint("DistanceY", 0, 1, 0, 2, 10.0))
sketch12.addConstraint(Sketcher.Constraint("DistanceY", 3, 2, 3, 1, 5.0))
sketch12.addConstraint(Sketcher.Constraint("Angle", 4, Q("-155 deg")))
sketch12.addConstraint(Sketcher.Constraint("DistanceX", 5, 2, 5, 1, 5.5))
sketch12.addConstraint(Sketcher.Constraint("DistanceX", -1, 1, 0, 2, 92.0))
sketch12.addConstraint(Sketcher.Constraint("DistanceX", 4, 2, 3, 2, 8.0))
sketch12.addConstraint(Sketcher.Constraint("DistanceY", -1, 1, 0, 2, 56.5))
sketch12.addConstraint(Sketcher.Constraint("DistanceX", 1, 1, 1, 2, 5.682998))
pad12 = body6.newObject("PartDesign::Pad", "Pad011")
pad12.Profile = sketch12
pad12.Length = 45
pad12.Reversed = True
body7 = doc.addObject("PartDesign::Body", "Body006")

sketch13 = body7.newObject("Sketcher::SketchObject", "Sketch012")
sketch13.AttachmentSupport = (doc.getObject("YZ_Plane006"), [""])
sketch13.MapMode = "FlatFace"
sketch13.AttachmentOffset = App.Placement(App.Vector(0, 0, 92), App.Rotation())
add_polygon(sketch13, [(54, 45), (39, 45), (39, 30), (54, 30)])
sketch13.addConstraint(Sketcher.Constraint("Horizontal", 0))
sketch13.addConstraint(Sketcher.Constraint("Vertical", 1))
sketch13.addConstraint(Sketcher.Constraint("Horizontal", 2))
sketch13.addConstraint(Sketcher.Constraint("Vertical", 3))
sketch13.addConstraint(Sketcher.Constraint("DistanceY", -1, 1, 0, 2, 45.0))
sketch13.addConstraint(Sketcher.Constraint("DistanceX", 0, 2, 0, 1, 14.844874))
sketch13.addConstraint(Sketcher.Constraint("DistanceY", 1, 2, 1, 1, 15.411636))
sketch13.addConstraint(Sketcher.Constraint("DistanceX", -1, 1, 2, 2, 54.163839))
pad13 = body7.newObject("PartDesign::Pad", "Pad012")
pad13.Profile = sketch13
pad13.Length = 15
body8 = doc.addObject("PartDesign::Body", "Body007")

sketch14 = body8.newObject("Sketcher::SketchObject", "Sketch013")
sketch14.AttachmentSupport = (doc.getObject("YZ_Plane007"), [""])
sketch14.MapMode = "FlatFace"
sketch14.AttachmentOffset = App.Placement(App.Vector(0, 0, 92), App.Rotation())
add_polygon(sketch14, [(36, 45), (19, 45), (19, 30), (36, 30)])
sketch14.addConstraint(Sketcher.Constraint("Horizontal", 0))
sketch14.addConstraint(Sketcher.Constraint("Vertical", 1))
sketch14.addConstraint(Sketcher.Constraint("Horizontal", 2))
sketch14.addConstraint(Sketcher.Constraint("Vertical", 3))
sketch14.addConstraint(Sketcher.Constraint("DistanceY", -1, 1, 0, 2, 45.0))
sketch14.addConstraint(Sketcher.Constraint("DistanceX", 0, 2, 0, 1, 16.745742))
sketch14.addConstraint(Sketcher.Constraint("DistanceY", 1, 2, 1, 1, 15.411636))
sketch14.addConstraint(Sketcher.Constraint("DistanceX", -1, 1, 0, 2, 19.314592))
pad14 = body8.newObject("PartDesign::Pad", "Pad013")
pad14.Profile = sketch14
pad14.Length = 15
body9 = doc.addObject("PartDesign::Body", "Body008")

sketch15 = body9.newObject("Sketcher::SketchObject", "Sketch014")
sketch15.AttachmentSupport = (doc.getObject("YZ_Plane008"), [""])
sketch15.MapMode = "FlatFace"
sketch15.AttachmentOffset = App.Placement(App.Vector(0, 0, 94), App.Rotation())
add_polygon(sketch15, [(43, 22), (13, 22), (13, 2), (43, 2)])
sketch15.addConstraint(Sketcher.Constraint("Horizontal", 0))
sketch15.addConstraint(Sketcher.Constraint("Vertical", 1))
sketch15.addConstraint(Sketcher.Constraint("Horizontal", 2))
sketch15.addConstraint(Sketcher.Constraint("Vertical", 3))
sketch15.addConstraint(Sketcher.Constraint("DistanceX", 0, 2, 0, 1, 30.0))
sketch15.addConstraint(Sketcher.Constraint("DistanceY", 1, 2, 1, 1, 20.0))
sketch15.addConstraint(Sketcher.Constraint("DistanceY", -1, 1, 0, 2, 22.0))
sketch15.addConstraint(Sketcher.Constraint("DistanceX", -1, 1, 0, 2, 13.499901))
pad15 = body9.newObject("PartDesign::Pad", "Pad014")
pad15.Profile = sketch15
pad15.Length = 1
body10 = doc.addObject("PartDesign::Body", "Body009")

sketch16 = body10.newObject("Sketcher::SketchObject", "Sketch015")
sketch16.AttachmentSupport = (doc.getObject("YZ_Plane009"), [""])
sketch16.MapMode = "FlatFace"
sketch16.AttachmentOffset = App.Placement(App.Vector(0, 0, 94), App.Rotation())
add_polygon(sketch16, [(63, 26), (47, 26), (47, 6), (63, 6)])
sketch16.addConstraint(Sketcher.Constraint("Horizontal", 0))
sketch16.addConstraint(Sketcher.Constraint("Vertical", 1))
sketch16.addConstraint(Sketcher.Constraint("Horizontal", 2))
sketch16.addConstraint(Sketcher.Constraint("Vertical", 3))
sketch16.addConstraint(Sketcher.Constraint("DistanceY", 1, 2, 1, 1, 19.37075))
sketch16.addConstraint(Sketcher.Constraint("DistanceX", 0, 2, 0, 1, 15.478497))
sketch16.addConstraint(Sketcher.Constraint("DistanceX", -1, 1, 0, 2, 47.19399))
sketch16.addConstraint(Sketcher.Constraint("DistanceY", -1, 1, 0, 2, 25.69611))
pad16 = body10.newObject("PartDesign::Pad", "Pad015")
pad16.Profile = sketch16
pad16.Length = 1

doc.recompute()
